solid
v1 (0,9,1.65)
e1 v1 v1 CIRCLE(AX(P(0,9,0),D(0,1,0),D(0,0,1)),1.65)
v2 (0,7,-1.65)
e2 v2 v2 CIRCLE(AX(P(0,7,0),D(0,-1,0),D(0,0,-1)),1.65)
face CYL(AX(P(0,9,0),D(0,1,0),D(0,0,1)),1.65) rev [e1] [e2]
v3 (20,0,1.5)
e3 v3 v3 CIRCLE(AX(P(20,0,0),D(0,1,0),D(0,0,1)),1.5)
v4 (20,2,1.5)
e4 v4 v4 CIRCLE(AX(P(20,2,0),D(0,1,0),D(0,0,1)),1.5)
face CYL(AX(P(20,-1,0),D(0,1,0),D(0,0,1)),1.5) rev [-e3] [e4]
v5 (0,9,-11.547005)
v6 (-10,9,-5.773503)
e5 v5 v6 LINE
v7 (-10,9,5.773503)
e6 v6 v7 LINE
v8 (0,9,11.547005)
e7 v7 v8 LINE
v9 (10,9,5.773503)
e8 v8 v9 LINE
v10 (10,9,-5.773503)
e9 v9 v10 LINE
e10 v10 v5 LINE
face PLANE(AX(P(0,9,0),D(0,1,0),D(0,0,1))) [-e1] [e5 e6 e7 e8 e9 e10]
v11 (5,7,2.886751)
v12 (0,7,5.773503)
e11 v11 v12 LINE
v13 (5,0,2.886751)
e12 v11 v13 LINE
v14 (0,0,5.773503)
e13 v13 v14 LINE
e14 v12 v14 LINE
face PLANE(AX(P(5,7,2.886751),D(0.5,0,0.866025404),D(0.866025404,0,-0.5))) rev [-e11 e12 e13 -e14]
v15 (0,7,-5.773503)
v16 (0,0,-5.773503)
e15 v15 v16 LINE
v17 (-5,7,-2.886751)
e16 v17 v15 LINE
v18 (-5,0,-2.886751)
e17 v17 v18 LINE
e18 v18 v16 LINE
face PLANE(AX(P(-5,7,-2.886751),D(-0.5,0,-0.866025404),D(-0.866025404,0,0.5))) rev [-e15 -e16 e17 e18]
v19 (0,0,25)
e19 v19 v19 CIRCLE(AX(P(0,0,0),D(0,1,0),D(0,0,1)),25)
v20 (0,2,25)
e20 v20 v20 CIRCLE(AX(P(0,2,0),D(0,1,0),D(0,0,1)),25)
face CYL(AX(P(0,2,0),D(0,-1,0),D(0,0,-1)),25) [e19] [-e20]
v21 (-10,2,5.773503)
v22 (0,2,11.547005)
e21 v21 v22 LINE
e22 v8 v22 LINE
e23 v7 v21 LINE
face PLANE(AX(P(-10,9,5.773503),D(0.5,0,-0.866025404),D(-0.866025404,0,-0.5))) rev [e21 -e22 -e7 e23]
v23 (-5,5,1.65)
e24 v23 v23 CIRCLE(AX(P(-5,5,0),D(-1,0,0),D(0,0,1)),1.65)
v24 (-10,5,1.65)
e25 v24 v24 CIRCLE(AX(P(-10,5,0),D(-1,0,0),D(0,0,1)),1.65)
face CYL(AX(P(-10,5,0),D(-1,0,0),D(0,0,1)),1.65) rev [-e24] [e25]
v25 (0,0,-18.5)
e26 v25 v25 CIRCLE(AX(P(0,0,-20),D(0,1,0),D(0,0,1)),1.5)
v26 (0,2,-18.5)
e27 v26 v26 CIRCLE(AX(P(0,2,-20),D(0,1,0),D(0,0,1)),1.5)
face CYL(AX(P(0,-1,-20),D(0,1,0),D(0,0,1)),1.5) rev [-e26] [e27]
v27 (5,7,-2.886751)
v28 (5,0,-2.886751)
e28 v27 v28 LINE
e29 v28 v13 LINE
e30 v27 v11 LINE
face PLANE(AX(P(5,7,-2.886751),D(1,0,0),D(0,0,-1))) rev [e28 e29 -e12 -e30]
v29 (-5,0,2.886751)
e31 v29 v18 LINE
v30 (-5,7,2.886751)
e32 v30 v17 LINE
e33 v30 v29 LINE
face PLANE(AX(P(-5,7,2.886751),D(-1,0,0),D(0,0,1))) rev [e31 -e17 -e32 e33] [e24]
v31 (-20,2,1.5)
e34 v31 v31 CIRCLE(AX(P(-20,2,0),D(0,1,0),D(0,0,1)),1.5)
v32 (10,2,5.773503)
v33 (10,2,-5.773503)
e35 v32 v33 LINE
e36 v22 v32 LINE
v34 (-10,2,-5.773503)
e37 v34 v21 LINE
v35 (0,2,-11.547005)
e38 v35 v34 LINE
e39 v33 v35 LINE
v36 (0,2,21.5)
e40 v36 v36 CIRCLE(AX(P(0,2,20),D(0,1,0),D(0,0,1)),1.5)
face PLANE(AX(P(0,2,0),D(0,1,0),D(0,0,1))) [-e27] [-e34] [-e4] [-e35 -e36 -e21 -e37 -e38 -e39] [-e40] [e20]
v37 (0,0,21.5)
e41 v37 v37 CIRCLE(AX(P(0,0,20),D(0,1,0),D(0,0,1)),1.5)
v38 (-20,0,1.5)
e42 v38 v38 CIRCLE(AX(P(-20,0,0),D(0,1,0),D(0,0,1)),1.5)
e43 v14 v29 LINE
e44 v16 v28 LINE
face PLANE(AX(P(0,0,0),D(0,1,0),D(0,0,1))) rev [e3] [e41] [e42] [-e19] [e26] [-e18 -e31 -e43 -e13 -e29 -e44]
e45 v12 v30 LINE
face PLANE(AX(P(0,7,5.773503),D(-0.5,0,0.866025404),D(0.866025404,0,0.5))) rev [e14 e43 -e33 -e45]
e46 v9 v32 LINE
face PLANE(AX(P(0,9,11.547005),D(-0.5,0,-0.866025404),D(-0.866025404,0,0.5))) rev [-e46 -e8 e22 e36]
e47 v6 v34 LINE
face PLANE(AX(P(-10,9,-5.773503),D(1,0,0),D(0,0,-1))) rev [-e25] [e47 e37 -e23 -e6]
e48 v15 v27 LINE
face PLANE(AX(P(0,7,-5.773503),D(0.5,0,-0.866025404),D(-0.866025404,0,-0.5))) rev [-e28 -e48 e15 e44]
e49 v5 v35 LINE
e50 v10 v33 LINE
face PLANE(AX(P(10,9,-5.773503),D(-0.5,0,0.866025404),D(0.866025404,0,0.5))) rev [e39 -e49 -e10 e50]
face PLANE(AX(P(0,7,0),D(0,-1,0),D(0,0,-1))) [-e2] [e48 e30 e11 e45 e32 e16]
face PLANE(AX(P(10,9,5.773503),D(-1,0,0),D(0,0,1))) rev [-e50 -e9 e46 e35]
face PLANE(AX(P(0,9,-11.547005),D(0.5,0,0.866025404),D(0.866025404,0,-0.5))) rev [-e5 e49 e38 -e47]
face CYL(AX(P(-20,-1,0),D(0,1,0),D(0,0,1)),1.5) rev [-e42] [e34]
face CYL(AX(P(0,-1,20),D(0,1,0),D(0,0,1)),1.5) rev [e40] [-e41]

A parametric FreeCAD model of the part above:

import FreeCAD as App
import Part
import Sketcher
Q = App.Units.Quantity

doc = App.newDocument("Part")
body = doc.addObject("PartDesign::Body", "Body")

# Sketch on XZ plane
sketch1 = body.newObject("Sketcher::SketchObject", "Sketch")
sketch1.AttachmentSupport = (doc.getObject("XZ_Plane"), [""])
sketch1.MapMode = "FlatFace"
sketch1.addGeometry(Part.Circle(App.Vector(0, 0, 0), App.Vector(0, 0, 1), 25), False)
sketch1.addConstraint([
    Sketcher.Constraint("Coincident", 0, 3, -1, 1),
    Sketcher.Constraint("Diameter", 0, 50.0),
])
pad1 = body.newObject("PartDesign::Pad", "Pad")
pad1.Profile = sketch1
pad1.Length = 2
pad1.Reversed = True

# Sketch on XZ plane
sketch2 = body.newObject("Sketcher::SketchObject", "Sketch001")
sketch2.AttachmentSupport = (doc.getObject("XZ_Plane"), [""])
sketch2.MapMode = "FlatFace"
sketch2.AttachmentOffset = App.Placement(App.Vector(0, 0, -2), App.Rotation())
sketch2.addGeometry([
    Part.Circle(App.Vector(0, -20, 0), App.Vector(0, 0, 1), 1.5),
    Part.Circle(App.Vector(20, 0, 0), App.Vector(0, 0, 1), 1.5),
    Part.Circle(App.Vector(0, 20, 0), App.Vector(0, 0, 1), 1.5),
    Part.Circle(App.Vector(-20, 0, 0), App.Vector(0, 0, 1), 1.5),
], False)
sketch2.addConstraint([
    Sketcher.Constraint("Equal", 0, 1),
    Sketcher.Constraint("Equal", 1, 2),
    Sketcher.Constraint("Equal", 2, 3),
    Sketcher.Constraint("Symmetric", 0, 3, 2, 3, -1, 1),
    Sketcher.Constraint("Symmetric", 1, 3, 3, 3, -1, 1),
    Sketcher.Constraint("PointOnObject", 0, 3, -2),
    Sketcher.Constraint("PointOnObject", 1, 3, -1),
    Sketcher.Constraint("Diameter", 0, 3.0),
    Sketcher.Constraint("DistanceY", 0, 3, -1, 1, 20.0),
    Sketcher.Constraint("DistanceX", -1, 1, 1, 3, 20.0),
])
pocket1 = body.newObject("PartDesign::Pocket", "Pocket")
pocket1.Profile = sketch2
pocket1.Length = 3
pocket1.Reversed = True

# Sketch on XZ plane
sketch3 = body.newObject("Sketcher::SketchObject", "Sketch002")
sketch3.AttachmentSupport = (doc.getObject("XZ_Plane"), [""])
sketch3.MapMode = "FlatFace"
sketch3.AttachmentOffset = App.Placement(App.Vector(0, 0, -2), App.Rotation())
sketch3.addGeometry([
    Part.LineSegment(App.Vector(0, -12, 0), App.Vector(-10, -6, 0)),  # 0
    Part.LineSegment(App.Vector(-10, -6, 0), App.Vector(-10, 6, 0)),  # 1
    Part.LineSegment(App.Vector(-10, 6, 0), App.Vector(0, 12, 0)),  # 2
    Part.LineSegment(App.Vector(0, 12, 0), App.Vector(10, 6, 0)),  # 3
    Part.LineSegment(App.Vector(10, 6, 0), App.Vector(10, -6, 0)),  # 4
    Part.LineSegment(App.Vector(10, -6, 0), App.Vector(0, -12, 0)),  # 5
], False)
sketch3.addConstraint([
    Sketcher.Constraint("Coincident", 0, 2, 1, 1),
    Sketcher.Constraint("Coincident", 1, 2, 2, 1),
    Sketcher.Constraint("Coincident", 2, 2, 3, 1),
    Sketcher.Constraint("Coincident", 3, 2, 4, 1),
    Sketcher.Constraint("Coincident", 4, 2, 5, 1),
    Sketcher.Constraint("Coincident", 5, 2, 0, 1),
    Sketcher.Constraint("Vertical", 1),
    Sketcher.Constraint("Vertical", 4),
    Sketcher.Constraint("Symmetric", 0, 2, 3, 2, -1, 1),
    Sketcher.Constraint("Symmetric", 2, 2, 5, 2, -1, 1),
    Sketcher.Constraint("PointOnObject", 2, 2, -2),
    Sketcher.Constraint("Parallel", 2, 5),
    Sketcher.Constraint("Horizontal", 1, 2, 3, 2),
    Sketcher.Constraint("Angle", 0, Q("150 deg")),
    Sketcher.Constraint("DistanceX", 0, 2, -1, 1, 10.0),
    Sketcher.Constraint("DistanceY", 1, 1, 1, 2, 11.547005),
])
pad2 = body.newObject("PartDesign::Pad", "Pad001")
pad2.Profile = sketch3
pad2.Length = 7
pad2.Reversed = True

# Sketch on XZ plane
sketch4 = body.newObject("Sketcher::SketchObject", "Sketch003")
sketch4.AttachmentSupport = (doc.getObject("XZ_Plane"), [""])
sketch4.MapMode = "FlatFace"
sketch4.addGeometry([
    Part.LineSegment(App.Vector(0, 6, 0), App.Vector(-5, 3, 0)),  # 0
    Part.LineSegment(App.Vector(-5, 3, 0), App.Vector(-5, -3, 0)),  # 1
    Part.LineSegment(App.Vector(-5, -3, 0), App.Vector(0, -6, 0)),  # 2
    Part.LineSegment(App.Vector(0, -6, 0), App.Vector(5, -3, 0)),  # 3
    Part.LineSegment(App.Vector(5, -3, 0), App.Vector(5, 3, 0)),  # 4
    Part.LineSegment(App.Vector(5, 3, 0), App.Vector(0, 6, 0)),  # 5
], False)
sketch4.addConstraint([
    Sketcher.Constraint("Coincident", 0, 2, 1, 1),
    Sketcher.Constraint("Coincident", 1, 2, 2, 1),
    Sketcher.Constraint("Coincident", 2, 2, 3, 1),
    Sketcher.Constraint("Coincident", 3, 2, 4, 1),
    Sketcher.Constraint("Coincident", 4, 2, 5, 1),
    Sketcher.Constraint("Coincident", 5, 2, 0, 1),
    Sketcher.Constraint("Vertical", 1),
    Sketcher.Constraint("Vertical", 4),
    Sketcher.Constraint("Symmetric", 0, 2, 3, 2, -1, 1),
    Sketcher.Constraint("Symmetric", 2, 2, 5, 2, -1, 1),
    Sketcher.Constraint("PointOnObject", 2, 2, -2),
    Sketcher.Constraint("Parallel", 2, 5),
    Sketcher.Constraint("Horizontal", 1, 2, 3, 2),
    Sketcher.Constraint("Angle", 0, Q("-150 deg")),
    Sketcher.Constraint("DistanceX", 0, 2, -1, 1, 5.0),
    Sketcher.Constraint("DistanceY", 1, 2, 1, 1, 5.773503),
])
pocket2 = body.newObject("PartDesign::Pocket", "Pocket001")
pocket2.Profile = sketch4
pocket2.Length = 7

# Sketch on YZ plane
sketch5 = body.newObject("Sketcher::SketchObject", "Sketch004")
sketch5.AttachmentSupport = (doc.getObject("YZ_Plane"), [""])
sketch5.MapMode = "FlatFace"
sketch5.AttachmentOffset = App.Placement(App.Vector(0, 0, -10), App.Rotation())
sketch5.addGeometry(Part.Circle(App.Vector(5, 0, 0), App.Vector(0, 0, 1), 1.6), False)
sketch5.addConstraint([
    Sketcher.Constraint("PointOnObject", 0, 3, -1),
    Sketcher.Constraint("Diameter", 0, 3.3),
    Sketcher.Constraint("DistanceX", -1, 1, 0, 3, 5.0),
])
doc.recompute()
hole = body.newObject("PartDesign::Hole", "Hole")
hole.Profile = sketch5
hole.ThreadType = "None"
hole.Diameter = 3.3
hole.DepthType = "Dimension"
hole.Depth = 5
hole.DrillPoint = "Flat"
hole.Reversed = True

# Sketch on XZ plane
sketch6 = body.newObject("Sketcher::SketchObject", "Sketch005")
sketch6.AttachmentSupport = (doc.getObject("XZ_Plane"), [""])
sketch6.MapMode = "FlatFace"
sketch6.AttachmentOffset = App.Placement(App.Vector(0, 0, -9), App.Rotation())
sketch6.addGeometry(Part.Circle(App.Vector(0, 0, 0), App.Vector(0, 0, 1), 1.6), False)
sketch6.addConstraint([
    Sketcher.Constraint("Coincident", 0, 3, -1, 1),
    Sketcher.Constraint("Diameter", 0, 3.3),
])
doc.recompute()
hole2 = body.newObject("PartDesign::Hole", "Hole001")
hole2.Profile = sketch6
hole2.ThreadType = "None"
hole2.Diameter = 3.3
hole2.DepthType = "ThroughAll"
hole2.Reversed = True

doc.recompute()
